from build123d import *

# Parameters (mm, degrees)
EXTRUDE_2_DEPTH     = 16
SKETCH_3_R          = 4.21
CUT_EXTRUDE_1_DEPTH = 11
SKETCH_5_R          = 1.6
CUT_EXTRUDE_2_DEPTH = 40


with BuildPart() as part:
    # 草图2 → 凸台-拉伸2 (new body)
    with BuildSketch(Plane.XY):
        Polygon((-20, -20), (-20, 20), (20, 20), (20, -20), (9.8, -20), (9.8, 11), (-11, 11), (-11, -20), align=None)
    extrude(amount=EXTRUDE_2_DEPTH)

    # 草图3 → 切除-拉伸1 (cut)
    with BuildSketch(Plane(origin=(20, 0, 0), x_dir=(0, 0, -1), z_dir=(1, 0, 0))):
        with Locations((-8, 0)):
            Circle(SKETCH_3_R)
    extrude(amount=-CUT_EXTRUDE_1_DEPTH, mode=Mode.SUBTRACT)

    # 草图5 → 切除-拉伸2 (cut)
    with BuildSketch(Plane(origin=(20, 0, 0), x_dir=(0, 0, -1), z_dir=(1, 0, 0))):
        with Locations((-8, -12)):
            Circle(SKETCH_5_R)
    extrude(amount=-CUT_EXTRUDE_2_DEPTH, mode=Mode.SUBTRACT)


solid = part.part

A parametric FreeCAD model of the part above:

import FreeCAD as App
import Part
import Sketcher
Q = App.Units.Quantity


def add_polygon(sketch, points):
    """Adds a closed chain of lines whose ends are joined by coincident constraints."""
    first, n = sketch.GeometryCount, len(points)
    for a, b in zip(points, points[1:] + points[:1]):
        sketch.addGeometry(Part.LineSegment(App.Vector(*a, 0), App.Vector(*b, 0)), False)
    for i in range(n):
        sketch.addConstraint(Sketcher.Constraint("Coincident", first + i, 2, first + (i + 1) % n, 1))

doc = App.newDocument("Part")
body = doc.addObject("PartDesign::Body", "Body")

# Sketch on XY plane
sketch1 = doc.addObject("Sketcher::SketchObject", "Sketch")
body.addObject(sketch1)
sketch1.AttachmentSupport = (doc.XY_Plane, [""])
sketch1.MapMode = "FlatFace"
add_polygon(sketch1, [(-20, 20), (-20, -20), (-11, -20), (-11, 11), (10, 11), (10, -20), (20, -20), (20, 20)])  # lines 0-7
sketch1.addConstraint(Sketcher.Constraint("Vertical", 0))
sketch1.addConstraint(Sketcher.Constraint("Horizontal", 1))
sketch1.addConstraint(Sketcher.Constraint("Vertical", 2))
sketch1.addConstraint(Sketcher.Constraint("Horizontal", 3))
sketch1.addConstraint(Sketcher.Constraint("Vertical", 4))
sketch1.addConstraint(Sketcher.Constraint("Horizontal", 5))
sketch1.addConstraint(Sketcher.Constraint("Vertical", 6))
sketch1.addConstraint(Sketcher.Constraint("Horizontal", 7))
sketch1.addConstraint(Sketcher.Constraint("Symmetric", 0, 2, 6, 2, -1, 1))
sketch1.addConstraint(Sketcher.Constraint("Horizontal", 1, 2, 4, 2))
sketch1.addConstraint(Sketcher.Constraint("Equal", 7, 0))
sketch1.addConstraint(Sketcher.Constraint("DistanceX", 1, 1, 1, 2, Q("9 mm")))
sketch1.addConstraint(Sketcher.Constraint("DistanceX", 7, 2, 7, 1, Q("40 mm")))
sketch1.addConstraint(Sketcher.Constraint("DistanceY", 2, 1, 2, 2, Q("31 mm")))
sketch1.addConstraint(Sketcher.Constraint("DistanceX", 3, 1, 3, 2, Q("20.8 mm")))
pad1 = doc.addObject("PartDesign::Pad", "Pad")
body.addObject(pad1)
pad1.Profile = sketch1
pad1.Length = 16

# Sketch on YZ plane
sketch2 = doc.addObject("Sketcher::SketchObject", "Sketch001")
body.addObject(sketch2)
sketch2.AttachmentSupport = (doc.YZ_Plane, [""])
sketch2.MapMode = "FlatFace"
sketch2.AttachmentOffset = App.Placement(App.Vector(0, 0, 20), App.Rotation())
sketch2.addGeometry(Part.Circle(App.Vector(0, 8, 0), App.Vector(0, 0, 1), 4.2), False)
sketch2.addConstraint(Sketcher.Constraint("PointOnObject", 0, 3, -2))
sketch2.addConstraint(Sketcher.Constraint("Diameter", 0, Q("8.42 mm")))
sketch2.addConstraint(Sketcher.Constraint("DistanceY", -1, 1, 0, 3, Q("8 mm")))
pocket1 = doc.addObject("PartDesign::Pocket", "Pocket")
body.addObject(pocket1)
pocket1.Profile = sketch2
pocket1.Length = 11

# Sketch on YZ plane
sketch3 = doc.addObject("Sketcher::SketchObject", "Sketch002")
body.addObject(sketch3)
sketch3.AttachmentSupport = (doc.YZ_Plane, [""])
sketch3.MapMode = "FlatFace"
sketch3.AttachmentOffset = App.Placement(App.Vector(0, 0, 20), App.Rotation())
sketch3.addGeometry(Part.Circle(App.Vector(-12, 8, 0), App.Vector(0, 0, 1), 1.6), False)
sketch3.addConstraint(Sketcher.Constraint("Diameter", 0, Q("3.2 mm")))
sketch3.addConstraint(Sketcher.Constraint("DistanceX", 0, 3, -1, 1, Q("12 mm")))
sketch3.addConstraint(Sketcher.Constraint("DistanceY", -1, 1, 0, 3, Q("8 mm")))
pocket2 = doc.addObject("PartDesign::Pocket", "Pocket001")
body.addObject(pocket2)
pocket2.Profile = sketch3
pocket2.Length = 40

doc.recompute()
